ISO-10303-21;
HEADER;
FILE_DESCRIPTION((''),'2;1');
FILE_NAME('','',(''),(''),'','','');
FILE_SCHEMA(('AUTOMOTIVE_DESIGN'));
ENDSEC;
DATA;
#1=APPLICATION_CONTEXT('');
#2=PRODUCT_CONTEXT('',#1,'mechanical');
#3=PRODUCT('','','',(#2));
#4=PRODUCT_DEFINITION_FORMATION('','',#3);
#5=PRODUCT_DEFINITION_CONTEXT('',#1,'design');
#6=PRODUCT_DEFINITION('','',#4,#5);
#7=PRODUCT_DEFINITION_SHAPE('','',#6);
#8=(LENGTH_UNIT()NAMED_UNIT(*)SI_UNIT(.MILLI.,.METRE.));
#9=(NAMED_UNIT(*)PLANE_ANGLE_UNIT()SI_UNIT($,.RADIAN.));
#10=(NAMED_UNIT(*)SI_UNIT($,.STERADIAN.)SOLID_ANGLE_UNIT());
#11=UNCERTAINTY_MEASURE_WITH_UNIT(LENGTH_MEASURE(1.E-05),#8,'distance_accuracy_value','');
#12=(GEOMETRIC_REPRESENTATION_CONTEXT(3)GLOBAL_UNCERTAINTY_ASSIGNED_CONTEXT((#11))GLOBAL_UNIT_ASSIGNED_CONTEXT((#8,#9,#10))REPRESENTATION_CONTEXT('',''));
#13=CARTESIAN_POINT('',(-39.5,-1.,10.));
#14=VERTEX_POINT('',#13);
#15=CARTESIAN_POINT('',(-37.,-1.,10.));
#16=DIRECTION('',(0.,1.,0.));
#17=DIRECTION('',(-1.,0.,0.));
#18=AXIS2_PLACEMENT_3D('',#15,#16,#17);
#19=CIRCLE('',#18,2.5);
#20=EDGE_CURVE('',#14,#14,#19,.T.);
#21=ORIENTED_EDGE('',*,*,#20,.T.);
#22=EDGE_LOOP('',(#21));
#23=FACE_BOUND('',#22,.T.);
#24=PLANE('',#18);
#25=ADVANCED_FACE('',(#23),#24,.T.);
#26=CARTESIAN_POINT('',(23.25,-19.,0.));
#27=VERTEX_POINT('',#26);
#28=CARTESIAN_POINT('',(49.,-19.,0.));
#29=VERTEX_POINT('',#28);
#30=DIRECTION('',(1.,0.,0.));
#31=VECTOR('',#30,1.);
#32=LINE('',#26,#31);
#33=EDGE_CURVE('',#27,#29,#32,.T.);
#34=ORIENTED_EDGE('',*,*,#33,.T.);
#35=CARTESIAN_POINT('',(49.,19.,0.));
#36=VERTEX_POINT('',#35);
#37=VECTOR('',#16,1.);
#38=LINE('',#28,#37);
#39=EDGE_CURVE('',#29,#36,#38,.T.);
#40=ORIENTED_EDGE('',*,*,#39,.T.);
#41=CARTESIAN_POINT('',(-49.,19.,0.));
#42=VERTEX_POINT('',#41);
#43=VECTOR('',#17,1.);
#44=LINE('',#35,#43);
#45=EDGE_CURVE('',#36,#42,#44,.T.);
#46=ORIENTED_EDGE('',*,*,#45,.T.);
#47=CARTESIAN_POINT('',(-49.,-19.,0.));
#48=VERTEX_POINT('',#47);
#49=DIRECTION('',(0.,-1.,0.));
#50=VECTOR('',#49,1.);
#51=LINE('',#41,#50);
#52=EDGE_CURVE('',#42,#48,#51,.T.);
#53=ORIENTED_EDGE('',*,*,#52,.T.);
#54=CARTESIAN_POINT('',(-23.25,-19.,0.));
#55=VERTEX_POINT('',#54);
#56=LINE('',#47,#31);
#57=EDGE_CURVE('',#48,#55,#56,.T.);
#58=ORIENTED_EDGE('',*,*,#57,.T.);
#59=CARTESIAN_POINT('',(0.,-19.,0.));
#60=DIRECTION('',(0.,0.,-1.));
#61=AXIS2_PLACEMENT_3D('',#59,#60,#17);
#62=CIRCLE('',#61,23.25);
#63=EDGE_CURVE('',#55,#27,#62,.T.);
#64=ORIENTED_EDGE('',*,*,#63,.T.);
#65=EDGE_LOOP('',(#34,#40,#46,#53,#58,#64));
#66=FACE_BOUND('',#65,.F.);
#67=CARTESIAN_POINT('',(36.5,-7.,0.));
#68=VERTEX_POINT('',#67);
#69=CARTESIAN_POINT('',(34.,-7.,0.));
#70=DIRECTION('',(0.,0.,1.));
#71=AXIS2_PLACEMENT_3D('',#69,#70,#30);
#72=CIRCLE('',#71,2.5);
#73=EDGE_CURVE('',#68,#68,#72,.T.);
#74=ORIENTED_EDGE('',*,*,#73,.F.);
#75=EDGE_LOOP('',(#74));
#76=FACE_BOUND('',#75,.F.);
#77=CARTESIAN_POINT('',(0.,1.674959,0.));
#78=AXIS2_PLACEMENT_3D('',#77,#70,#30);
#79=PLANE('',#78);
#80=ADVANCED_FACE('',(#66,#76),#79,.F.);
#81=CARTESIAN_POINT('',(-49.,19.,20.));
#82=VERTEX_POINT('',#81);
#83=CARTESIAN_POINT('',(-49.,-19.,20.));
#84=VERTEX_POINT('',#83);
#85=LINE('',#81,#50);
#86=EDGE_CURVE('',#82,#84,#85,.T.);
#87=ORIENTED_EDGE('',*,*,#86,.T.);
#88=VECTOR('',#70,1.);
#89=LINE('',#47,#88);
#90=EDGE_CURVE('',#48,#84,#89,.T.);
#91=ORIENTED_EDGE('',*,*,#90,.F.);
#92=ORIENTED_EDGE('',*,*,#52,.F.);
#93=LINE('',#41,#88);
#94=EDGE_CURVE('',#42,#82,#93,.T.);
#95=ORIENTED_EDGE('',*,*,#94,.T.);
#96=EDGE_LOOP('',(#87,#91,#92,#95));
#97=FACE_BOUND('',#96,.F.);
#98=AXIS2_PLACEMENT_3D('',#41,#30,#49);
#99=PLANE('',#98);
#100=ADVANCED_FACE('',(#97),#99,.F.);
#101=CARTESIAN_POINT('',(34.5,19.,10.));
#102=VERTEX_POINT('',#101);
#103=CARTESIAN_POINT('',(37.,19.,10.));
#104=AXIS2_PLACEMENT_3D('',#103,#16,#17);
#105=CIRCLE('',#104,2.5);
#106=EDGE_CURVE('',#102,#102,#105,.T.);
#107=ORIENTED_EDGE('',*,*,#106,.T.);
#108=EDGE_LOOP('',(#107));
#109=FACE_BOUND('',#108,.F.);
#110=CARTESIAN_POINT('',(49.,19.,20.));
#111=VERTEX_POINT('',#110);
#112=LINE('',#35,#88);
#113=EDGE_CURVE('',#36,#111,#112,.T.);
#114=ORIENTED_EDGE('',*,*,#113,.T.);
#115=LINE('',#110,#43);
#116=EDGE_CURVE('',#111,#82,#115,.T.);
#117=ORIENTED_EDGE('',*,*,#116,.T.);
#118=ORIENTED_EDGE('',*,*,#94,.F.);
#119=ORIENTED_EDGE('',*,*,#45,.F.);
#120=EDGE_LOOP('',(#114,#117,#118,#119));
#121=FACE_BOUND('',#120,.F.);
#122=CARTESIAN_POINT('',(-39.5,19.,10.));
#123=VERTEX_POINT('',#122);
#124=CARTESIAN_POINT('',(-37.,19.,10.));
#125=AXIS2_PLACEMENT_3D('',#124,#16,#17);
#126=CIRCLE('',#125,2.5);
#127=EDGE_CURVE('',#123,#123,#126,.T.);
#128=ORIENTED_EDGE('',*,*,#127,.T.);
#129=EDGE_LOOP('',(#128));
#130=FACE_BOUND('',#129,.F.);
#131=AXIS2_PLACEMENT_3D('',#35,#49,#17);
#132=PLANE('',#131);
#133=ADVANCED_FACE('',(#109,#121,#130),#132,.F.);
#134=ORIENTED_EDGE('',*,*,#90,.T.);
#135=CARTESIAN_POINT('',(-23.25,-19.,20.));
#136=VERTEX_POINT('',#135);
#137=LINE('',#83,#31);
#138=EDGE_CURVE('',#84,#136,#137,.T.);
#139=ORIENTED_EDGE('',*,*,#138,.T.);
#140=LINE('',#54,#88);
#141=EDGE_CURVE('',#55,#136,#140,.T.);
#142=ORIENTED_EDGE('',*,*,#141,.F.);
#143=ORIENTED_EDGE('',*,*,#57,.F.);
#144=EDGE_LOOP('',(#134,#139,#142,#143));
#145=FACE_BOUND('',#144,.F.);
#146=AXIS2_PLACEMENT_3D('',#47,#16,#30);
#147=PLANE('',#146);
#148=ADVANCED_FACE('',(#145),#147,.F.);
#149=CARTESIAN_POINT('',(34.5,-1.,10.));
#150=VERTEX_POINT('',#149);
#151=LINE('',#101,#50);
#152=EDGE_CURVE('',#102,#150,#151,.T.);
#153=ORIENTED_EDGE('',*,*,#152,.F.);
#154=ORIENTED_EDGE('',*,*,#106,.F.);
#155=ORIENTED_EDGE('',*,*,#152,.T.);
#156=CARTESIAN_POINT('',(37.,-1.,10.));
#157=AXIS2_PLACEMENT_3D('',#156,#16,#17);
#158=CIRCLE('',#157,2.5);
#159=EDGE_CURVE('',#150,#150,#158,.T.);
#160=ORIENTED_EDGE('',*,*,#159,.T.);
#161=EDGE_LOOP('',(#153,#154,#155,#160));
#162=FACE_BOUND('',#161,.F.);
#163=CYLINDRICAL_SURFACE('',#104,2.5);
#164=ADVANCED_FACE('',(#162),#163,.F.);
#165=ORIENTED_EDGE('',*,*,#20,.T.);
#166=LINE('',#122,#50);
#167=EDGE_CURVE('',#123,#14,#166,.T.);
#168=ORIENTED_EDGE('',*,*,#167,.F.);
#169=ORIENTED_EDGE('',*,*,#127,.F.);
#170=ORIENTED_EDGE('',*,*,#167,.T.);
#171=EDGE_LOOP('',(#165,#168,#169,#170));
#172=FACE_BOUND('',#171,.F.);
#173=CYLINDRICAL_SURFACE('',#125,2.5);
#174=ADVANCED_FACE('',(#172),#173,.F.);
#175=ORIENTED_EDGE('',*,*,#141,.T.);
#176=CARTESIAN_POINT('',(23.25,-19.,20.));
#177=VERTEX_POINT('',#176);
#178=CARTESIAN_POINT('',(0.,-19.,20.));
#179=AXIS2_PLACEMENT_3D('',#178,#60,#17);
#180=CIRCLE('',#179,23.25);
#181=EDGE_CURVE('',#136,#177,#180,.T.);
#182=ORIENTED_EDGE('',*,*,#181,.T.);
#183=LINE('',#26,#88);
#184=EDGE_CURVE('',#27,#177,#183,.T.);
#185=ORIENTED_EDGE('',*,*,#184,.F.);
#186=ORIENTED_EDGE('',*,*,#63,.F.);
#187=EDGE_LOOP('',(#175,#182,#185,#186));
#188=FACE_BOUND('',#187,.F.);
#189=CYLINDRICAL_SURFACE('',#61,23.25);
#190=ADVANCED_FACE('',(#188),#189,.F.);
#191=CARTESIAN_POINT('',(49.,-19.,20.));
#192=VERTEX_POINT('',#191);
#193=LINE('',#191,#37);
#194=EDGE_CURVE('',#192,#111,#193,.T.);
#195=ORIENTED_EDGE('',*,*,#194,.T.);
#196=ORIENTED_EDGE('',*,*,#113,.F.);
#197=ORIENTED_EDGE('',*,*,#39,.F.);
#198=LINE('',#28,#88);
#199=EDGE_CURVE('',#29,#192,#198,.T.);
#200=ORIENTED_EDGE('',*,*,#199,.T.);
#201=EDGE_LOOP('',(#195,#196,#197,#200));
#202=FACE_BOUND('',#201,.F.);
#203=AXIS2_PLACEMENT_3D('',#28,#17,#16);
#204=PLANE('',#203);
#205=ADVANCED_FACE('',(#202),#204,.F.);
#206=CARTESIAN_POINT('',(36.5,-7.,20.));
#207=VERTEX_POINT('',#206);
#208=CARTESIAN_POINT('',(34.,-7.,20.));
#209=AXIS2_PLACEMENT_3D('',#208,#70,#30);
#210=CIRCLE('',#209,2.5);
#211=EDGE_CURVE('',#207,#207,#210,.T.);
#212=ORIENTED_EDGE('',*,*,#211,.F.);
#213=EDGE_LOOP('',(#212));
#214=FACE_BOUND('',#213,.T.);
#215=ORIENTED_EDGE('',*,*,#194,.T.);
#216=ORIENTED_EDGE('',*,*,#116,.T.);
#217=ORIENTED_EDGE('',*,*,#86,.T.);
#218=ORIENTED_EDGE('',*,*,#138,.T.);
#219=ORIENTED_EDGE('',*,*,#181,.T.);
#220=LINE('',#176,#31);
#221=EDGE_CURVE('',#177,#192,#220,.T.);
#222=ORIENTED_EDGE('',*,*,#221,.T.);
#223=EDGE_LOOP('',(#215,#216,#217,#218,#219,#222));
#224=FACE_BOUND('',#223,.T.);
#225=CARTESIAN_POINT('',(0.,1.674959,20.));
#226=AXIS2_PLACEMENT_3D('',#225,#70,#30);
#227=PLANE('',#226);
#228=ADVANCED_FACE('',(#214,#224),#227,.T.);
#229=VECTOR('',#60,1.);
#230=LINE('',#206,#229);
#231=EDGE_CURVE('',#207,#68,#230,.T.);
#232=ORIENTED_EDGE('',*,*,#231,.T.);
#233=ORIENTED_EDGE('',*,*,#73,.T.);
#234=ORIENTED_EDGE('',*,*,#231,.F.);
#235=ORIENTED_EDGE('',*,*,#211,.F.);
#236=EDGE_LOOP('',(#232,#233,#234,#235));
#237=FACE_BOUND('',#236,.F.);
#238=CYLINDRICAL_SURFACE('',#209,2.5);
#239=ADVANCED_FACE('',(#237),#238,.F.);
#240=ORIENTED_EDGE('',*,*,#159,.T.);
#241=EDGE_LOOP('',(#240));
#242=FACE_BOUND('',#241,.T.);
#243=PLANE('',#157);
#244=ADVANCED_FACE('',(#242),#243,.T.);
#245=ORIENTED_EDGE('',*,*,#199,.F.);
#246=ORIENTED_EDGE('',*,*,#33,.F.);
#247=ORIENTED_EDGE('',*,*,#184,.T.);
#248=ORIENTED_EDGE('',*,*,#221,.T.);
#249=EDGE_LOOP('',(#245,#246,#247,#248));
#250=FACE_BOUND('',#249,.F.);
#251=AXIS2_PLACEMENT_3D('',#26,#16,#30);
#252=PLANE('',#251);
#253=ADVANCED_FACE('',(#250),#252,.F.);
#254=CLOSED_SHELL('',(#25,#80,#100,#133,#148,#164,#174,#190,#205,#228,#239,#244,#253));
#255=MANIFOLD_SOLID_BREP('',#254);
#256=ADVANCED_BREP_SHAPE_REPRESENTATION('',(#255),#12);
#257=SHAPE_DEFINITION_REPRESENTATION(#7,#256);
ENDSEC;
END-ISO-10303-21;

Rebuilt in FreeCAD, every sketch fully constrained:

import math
import FreeCAD as App
import Part
import Sketcher
Q = App.Units.Quantity

doc = App.newDocument("Part")
body = doc.addObject("PartDesign::Body", "Body")

# Sketch on XY plane
sketch1 = body.newObject("Sketcher::SketchObject", "Sketch")
sketch1.AttachmentSupport = (doc.getObject("XY_Plane"), [""])
sketch1.MapMode = "FlatFace"
sketch1.addGeometry(Part.LineSegment(App.Vector(49, -19, 0), App.Vector(49, 19, 0)), False)
sketch1.addGeometry(Part.LineSegment(App.Vector(49, 19, 0), App.Vector(-49, 19, 0)), False)
sketch1.addGeometry(Part.LineSegment(App.Vector(-49, 19, 0), App.Vector(-49, -19, 0)), False)
sketch1.addGeometry(Part.LineSegment(App.Vector(-49, -19, 0), App.Vector(-23, -19, 0)), False)
sketch1.addGeometry(Part.ArcOfCircle(Part.Circle(App.Vector(0, -19, 0), App.Vector(0, 0, 1), 23), math.radians(0), math.radians(180)), False)
sketch1.addGeometry(Part.LineSegment(App.Vector(23, -19, 0), App.Vector(49, -19, 0)), False)
sketch1.addConstraint(Sketcher.Constraint("Coincident", 0, 2, 1, 1))
sketch1.addConstraint(Sketcher.Constraint("Coincident", 1, 2, 2, 1))
sketch1.addConstraint(Sketcher.Constraint("Coincident", 2, 2, 3, 1))
sketch1.addConstraint(Sketcher.Constraint("Coincident", 3, 2, 4, 2))
sketch1.addConstraint(Sketcher.Constraint("Coincident", 4, 1, 5, 1))
sketch1.addConstraint(Sketcher.Constraint("Coincident", 5, 2, 0, 1))
sketch1.addConstraint(Sketcher.Constraint("Vertical", 0))
sketch1.addConstraint(Sketcher.Constraint("Horizontal", 1))
sketch1.addConstraint(Sketcher.Constraint("Vertical", 2))
sketch1.addConstraint(Sketcher.Constraint("Horizontal", 3))
sketch1.addConstraint(Sketcher.Constraint("Horizontal", 5))
sketch1.addConstraint(Sketcher.Constraint("Symmetric", 0, 2, 2, 2, -1, 1))
sketch1.addConstraint(Sketcher.Constraint("Symmetric", 3, 2, 4, 1, -2))
sketch1.addConstraint(Sketcher.Constraint("Horizontal", 4, 3, 2, 2))
sketch1.addConstraint(Sketcher.Constraint("DistanceX", 1, 2, 1, 1, Q("98 mm")))
sketch1.addConstraint(Sketcher.Constraint("DistanceY", 0, 1, 0, 2, Q("38 mm")))
sketch1.addConstraint(Sketcher.Constraint("Radius", 4, Q("23.25 mm")))
pad1 = body.newObject("PartDesign::Pad", "Pad")
pad1.Profile = sketch1
pad1.Length = 20

# Sketch on XZ plane
sketch2 = body.newObject("Sketcher::SketchObject", "Sketch001")
sketch2.AttachmentSupport = (doc.getObject("XZ_Plane"), [""])
sketch2.MapMode = "FlatFace"
sketch2.AttachmentOffset = App.Placement(App.Vector(0, 0, -19), App.Rotation())
sketch2.addGeometry(Part.Circle(App.Vector(37, 10, 0), App.Vector(0, 0, 1), 2.5), False)
sketch2.addGeometry(Part.Circle(App.Vector(-37, 10, 0), App.Vector(0, 0, 1), 2.5), False)
sketch2.addConstraint(Sketcher.Constraint("Equal", 0, 1))
sketch2.addConstraint(Sketcher.Constraint("Symmetric", 0, 3, 1, 3, -2))
sketch2.addConstraint(Sketcher.Constraint("Diameter", 0, Q("5 mm")))
sketch2.addConstraint(Sketcher.Constraint("DistanceX", -1, 1, 0, 3, Q("37 mm")))
sketch2.addConstraint(Sketcher.Constraint("DistanceY", -1, 1, 0, 3, Q("10 mm")))
pocket1 = body.newObject("PartDesign::Pocket", "Pocket")
pocket1.Profile = sketch2
pocket1.Length = 20
pocket1.Reversed = True

# Sketch on XY plane
sketch3 = body.newObject("Sketcher::SketchObject", "Sketch002")
sketch3.AttachmentSupport = (doc.getObject("XY_Plane"), [""])
sketch3.MapMode = "FlatFace"
sketch3.AttachmentOffset = App.Placement(App.Vector(0, 0, 20), App.Rotation())
sketch3.addGeometry(Part.Circle(App.Vector(34, -7, 0), App.Vector(0, 0, 1), 2.5), False)
sketch3.addConstraint(Sketcher.Constraint("Diameter", 0, Q("5 mm")))
sketch3.addConstraint(Sketcher.Constraint("DistanceX", -1, 1, 0, 3, Q("34 mm")))
sketch3.addConstraint(Sketcher.Constraint("DistanceY", 0, 3, -1, 1, Q("7 mm")))
pocket2 = body.newObject("PartDesign::Pocket", "Pocket001")
pocket2.Profile = sketch3
pocket2.Length = 20

doc.recompute()
